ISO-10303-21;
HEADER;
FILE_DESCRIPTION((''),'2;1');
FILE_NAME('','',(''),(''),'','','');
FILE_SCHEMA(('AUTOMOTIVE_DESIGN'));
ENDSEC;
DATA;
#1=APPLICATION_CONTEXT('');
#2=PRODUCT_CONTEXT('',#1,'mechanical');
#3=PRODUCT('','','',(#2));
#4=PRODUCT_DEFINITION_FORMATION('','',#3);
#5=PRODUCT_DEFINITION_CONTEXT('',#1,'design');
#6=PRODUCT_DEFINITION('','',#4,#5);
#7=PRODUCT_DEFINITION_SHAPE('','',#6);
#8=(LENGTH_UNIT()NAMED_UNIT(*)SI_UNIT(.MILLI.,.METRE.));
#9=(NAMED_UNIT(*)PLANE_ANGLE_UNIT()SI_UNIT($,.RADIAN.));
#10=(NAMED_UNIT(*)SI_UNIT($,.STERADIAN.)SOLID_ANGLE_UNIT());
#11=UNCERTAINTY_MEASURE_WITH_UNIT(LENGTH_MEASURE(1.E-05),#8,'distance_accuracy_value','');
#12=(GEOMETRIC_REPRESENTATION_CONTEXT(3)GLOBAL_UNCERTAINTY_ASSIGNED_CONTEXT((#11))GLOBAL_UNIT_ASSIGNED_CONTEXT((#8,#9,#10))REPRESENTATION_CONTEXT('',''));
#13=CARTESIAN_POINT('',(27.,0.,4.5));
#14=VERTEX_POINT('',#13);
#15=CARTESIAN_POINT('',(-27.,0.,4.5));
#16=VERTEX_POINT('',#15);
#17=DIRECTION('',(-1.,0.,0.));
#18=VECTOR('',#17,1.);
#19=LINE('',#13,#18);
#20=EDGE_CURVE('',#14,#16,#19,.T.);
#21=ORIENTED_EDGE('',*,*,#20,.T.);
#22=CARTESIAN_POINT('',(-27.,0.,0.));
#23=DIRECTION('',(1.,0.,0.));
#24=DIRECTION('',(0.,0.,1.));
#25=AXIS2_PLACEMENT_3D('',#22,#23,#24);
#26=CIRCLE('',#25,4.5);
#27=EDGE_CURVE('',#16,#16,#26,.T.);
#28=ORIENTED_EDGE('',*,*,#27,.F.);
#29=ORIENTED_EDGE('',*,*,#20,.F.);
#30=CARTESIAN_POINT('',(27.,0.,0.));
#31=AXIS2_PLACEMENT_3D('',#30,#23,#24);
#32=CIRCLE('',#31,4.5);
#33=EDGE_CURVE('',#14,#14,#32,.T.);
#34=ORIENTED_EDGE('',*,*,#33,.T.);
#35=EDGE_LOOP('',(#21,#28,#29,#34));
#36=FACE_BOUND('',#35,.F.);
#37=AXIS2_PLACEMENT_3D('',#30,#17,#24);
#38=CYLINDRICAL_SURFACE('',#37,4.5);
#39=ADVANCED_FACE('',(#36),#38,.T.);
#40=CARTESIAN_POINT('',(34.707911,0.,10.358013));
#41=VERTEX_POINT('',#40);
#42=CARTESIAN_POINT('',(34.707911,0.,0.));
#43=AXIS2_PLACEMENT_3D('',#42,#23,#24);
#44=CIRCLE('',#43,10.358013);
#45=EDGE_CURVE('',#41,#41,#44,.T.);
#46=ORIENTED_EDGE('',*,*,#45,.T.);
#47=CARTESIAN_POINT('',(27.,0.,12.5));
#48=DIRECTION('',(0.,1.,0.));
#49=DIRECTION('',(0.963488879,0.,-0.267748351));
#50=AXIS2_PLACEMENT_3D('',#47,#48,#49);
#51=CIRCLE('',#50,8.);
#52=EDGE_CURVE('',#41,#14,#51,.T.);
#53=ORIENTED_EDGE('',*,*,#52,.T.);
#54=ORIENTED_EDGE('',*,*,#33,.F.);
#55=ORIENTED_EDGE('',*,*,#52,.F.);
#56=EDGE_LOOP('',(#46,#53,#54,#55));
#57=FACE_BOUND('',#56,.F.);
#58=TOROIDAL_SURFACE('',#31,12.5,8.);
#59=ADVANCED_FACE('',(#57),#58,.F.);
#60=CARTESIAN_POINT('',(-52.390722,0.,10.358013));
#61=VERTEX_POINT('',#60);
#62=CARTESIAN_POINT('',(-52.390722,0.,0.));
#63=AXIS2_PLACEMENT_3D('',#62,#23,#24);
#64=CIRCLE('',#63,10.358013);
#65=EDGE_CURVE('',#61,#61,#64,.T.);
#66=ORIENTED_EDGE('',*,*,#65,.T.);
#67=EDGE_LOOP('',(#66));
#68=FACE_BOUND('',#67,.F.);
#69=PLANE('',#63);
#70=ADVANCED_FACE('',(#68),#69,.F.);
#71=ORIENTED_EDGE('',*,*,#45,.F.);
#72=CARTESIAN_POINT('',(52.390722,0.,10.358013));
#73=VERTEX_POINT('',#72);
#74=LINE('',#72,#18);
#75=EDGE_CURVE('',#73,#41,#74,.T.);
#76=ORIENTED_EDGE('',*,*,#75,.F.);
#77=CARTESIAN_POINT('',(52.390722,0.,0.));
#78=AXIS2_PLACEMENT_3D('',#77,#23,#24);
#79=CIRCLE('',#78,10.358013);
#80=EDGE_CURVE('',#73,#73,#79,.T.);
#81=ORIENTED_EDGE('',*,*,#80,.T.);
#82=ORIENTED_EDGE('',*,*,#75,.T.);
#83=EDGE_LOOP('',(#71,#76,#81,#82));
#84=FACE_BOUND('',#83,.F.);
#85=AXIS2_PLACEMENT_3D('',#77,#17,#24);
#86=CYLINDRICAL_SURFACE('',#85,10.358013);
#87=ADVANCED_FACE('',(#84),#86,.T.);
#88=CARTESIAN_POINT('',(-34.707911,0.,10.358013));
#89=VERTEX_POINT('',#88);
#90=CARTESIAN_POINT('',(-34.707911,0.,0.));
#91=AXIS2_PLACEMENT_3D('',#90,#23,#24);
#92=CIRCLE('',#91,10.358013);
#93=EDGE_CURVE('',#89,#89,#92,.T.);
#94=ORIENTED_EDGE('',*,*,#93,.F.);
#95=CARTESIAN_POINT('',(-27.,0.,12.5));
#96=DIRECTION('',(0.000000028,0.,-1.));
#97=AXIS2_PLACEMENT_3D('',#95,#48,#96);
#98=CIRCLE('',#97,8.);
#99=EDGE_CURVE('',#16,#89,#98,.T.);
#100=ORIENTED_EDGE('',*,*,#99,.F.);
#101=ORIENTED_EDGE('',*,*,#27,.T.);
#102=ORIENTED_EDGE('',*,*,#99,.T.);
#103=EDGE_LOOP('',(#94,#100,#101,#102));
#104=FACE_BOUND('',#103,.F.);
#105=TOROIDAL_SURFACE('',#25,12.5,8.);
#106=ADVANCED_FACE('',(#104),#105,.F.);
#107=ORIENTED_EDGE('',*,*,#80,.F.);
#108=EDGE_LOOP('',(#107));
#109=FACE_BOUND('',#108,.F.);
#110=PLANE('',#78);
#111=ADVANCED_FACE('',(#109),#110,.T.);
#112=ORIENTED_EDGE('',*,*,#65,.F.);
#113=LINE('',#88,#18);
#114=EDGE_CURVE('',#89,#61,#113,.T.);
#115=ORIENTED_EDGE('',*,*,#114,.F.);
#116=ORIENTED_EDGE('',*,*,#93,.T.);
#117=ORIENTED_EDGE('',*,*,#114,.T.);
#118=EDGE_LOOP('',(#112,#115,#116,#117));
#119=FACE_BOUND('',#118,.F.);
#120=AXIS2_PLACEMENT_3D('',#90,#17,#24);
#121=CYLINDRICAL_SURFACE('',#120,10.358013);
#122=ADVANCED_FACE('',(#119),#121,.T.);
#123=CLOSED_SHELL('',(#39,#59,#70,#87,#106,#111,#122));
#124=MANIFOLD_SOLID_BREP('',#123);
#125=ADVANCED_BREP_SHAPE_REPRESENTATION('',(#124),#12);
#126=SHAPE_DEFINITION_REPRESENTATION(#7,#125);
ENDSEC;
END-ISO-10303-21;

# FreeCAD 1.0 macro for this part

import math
import FreeCAD as App
import Part
import Sketcher

doc = App.newDocument("Part")
body = doc.addObject("PartDesign::Body", "Body")

# Sketch on XZ plane
sketch1 = body.newObject("Sketcher::SketchObject", "Sketch")
sketch1.AttachmentSupport = (doc.getObject("XZ_Plane"), [""])
sketch1.MapMode = "FlatFace"
sketch1.addGeometry(Part.LineSegment(App.Vector(27, 4, 0), App.Vector(-27, 4, 0)), False)
sketch1.addGeometry(Part.ArcOfCircle(Part.Circle(App.Vector(-27, 12, 0), App.Vector(0, 0, 1), 8), math.radians(-164), math.radians(-90)), False)
sketch1.addGeometry(Part.LineSegment(App.Vector(-35, 10, 0), App.Vector(-52, 10, 0)), False)
sketch1.addGeometry(Part.LineSegment(App.Vector(-52, 10, 0), App.Vector(-52, 0, 0)), False)
sketch1.addGeometry(Part.LineSegment(App.Vector(-52, 0, 0), App.Vector(52, 0, 0)), False)
sketch1.addGeometry(Part.LineSegment(App.Vector(52, 0, 0), App.Vector(52, 10, 0)), False)
sketch1.addGeometry(Part.LineSegment(App.Vector(52, 10, 0), App.Vector(35, 10, 0)), False)
sketch1.addGeometry(Part.ArcOfCircle(Part.Circle(App.Vector(27, 12, 0), App.Vector(0, 0, 1), 8), math.radians(-90), math.radians(-16)), False)
sketch1.addConstraint(Sketcher.Constraint("Tangent", 0, 2, 1, 2))
sketch1.addConstraint(Sketcher.Constraint("Coincident", 1, 1, 2, 1))
sketch1.addConstraint(Sketcher.Constraint("Coincident", 2, 2, 3, 1))
sketch1.addConstraint(Sketcher.Constraint("Coincident", 3, 2, 4, 1))
sketch1.addConstraint(Sketcher.Constraint("Coincident", 4, 2, 5, 1))
sketch1.addConstraint(Sketcher.Constraint("Coincident", 5, 2, 6, 1))
sketch1.addConstraint(Sketcher.Constraint("Coincident", 6, 2, 7, 2))
sketch1.addConstraint(Sketcher.Constraint("Tangent", 7, 1, 0, 1))
sketch1.addConstraint(Sketcher.Constraint("Horizontal", 0))
sketch1.addConstraint(Sketcher.Constraint("Horizontal", 2))
sketch1.addConstraint(Sketcher.Constraint("Vertical", 3))
sketch1.addConstraint(Sketcher.Constraint("Horizontal", 4))
sketch1.addConstraint(Sketcher.Constraint("Vertical", 5))
sketch1.addConstraint(Sketcher.Constraint("Horizontal", 6))
sketch1.addConstraint(Sketcher.Constraint("Equal", 1, 7))
sketch1.addConstraint(Sketcher.Constraint("Symmetric", 3, 2, 4, 2, -1, 1))
sketch1.addConstraint(Sketcher.Constraint("Symmetric", 1, 1, 6, 2, -2))
sketch1.addConstraint(Sketcher.Constraint("Radius", 1, 8.0))
sketch1.addConstraint(Sketcher.Constraint("DistanceX", 0, 2, 0, 1, 54.0))
sketch1.addConstraint(Sketcher.Constraint("DistanceY", -1, 1, 1, 3, 12.5))
sketch1.addConstraint(Sketcher.Constraint("DistanceX", 2, 2, 2, 1, 17.682811))
sketch1.addConstraint(Sketcher.Constraint("DistanceX", 4, 1, 4, 2, 104.781444))
revolution = body.newObject("PartDesign::Revolution", "Revolution")
revolution.Profile = sketch1
revolution.ReferenceAxis = (sketch1, ["H_Axis"])
revolution.Angle = 360

doc.recompute()
